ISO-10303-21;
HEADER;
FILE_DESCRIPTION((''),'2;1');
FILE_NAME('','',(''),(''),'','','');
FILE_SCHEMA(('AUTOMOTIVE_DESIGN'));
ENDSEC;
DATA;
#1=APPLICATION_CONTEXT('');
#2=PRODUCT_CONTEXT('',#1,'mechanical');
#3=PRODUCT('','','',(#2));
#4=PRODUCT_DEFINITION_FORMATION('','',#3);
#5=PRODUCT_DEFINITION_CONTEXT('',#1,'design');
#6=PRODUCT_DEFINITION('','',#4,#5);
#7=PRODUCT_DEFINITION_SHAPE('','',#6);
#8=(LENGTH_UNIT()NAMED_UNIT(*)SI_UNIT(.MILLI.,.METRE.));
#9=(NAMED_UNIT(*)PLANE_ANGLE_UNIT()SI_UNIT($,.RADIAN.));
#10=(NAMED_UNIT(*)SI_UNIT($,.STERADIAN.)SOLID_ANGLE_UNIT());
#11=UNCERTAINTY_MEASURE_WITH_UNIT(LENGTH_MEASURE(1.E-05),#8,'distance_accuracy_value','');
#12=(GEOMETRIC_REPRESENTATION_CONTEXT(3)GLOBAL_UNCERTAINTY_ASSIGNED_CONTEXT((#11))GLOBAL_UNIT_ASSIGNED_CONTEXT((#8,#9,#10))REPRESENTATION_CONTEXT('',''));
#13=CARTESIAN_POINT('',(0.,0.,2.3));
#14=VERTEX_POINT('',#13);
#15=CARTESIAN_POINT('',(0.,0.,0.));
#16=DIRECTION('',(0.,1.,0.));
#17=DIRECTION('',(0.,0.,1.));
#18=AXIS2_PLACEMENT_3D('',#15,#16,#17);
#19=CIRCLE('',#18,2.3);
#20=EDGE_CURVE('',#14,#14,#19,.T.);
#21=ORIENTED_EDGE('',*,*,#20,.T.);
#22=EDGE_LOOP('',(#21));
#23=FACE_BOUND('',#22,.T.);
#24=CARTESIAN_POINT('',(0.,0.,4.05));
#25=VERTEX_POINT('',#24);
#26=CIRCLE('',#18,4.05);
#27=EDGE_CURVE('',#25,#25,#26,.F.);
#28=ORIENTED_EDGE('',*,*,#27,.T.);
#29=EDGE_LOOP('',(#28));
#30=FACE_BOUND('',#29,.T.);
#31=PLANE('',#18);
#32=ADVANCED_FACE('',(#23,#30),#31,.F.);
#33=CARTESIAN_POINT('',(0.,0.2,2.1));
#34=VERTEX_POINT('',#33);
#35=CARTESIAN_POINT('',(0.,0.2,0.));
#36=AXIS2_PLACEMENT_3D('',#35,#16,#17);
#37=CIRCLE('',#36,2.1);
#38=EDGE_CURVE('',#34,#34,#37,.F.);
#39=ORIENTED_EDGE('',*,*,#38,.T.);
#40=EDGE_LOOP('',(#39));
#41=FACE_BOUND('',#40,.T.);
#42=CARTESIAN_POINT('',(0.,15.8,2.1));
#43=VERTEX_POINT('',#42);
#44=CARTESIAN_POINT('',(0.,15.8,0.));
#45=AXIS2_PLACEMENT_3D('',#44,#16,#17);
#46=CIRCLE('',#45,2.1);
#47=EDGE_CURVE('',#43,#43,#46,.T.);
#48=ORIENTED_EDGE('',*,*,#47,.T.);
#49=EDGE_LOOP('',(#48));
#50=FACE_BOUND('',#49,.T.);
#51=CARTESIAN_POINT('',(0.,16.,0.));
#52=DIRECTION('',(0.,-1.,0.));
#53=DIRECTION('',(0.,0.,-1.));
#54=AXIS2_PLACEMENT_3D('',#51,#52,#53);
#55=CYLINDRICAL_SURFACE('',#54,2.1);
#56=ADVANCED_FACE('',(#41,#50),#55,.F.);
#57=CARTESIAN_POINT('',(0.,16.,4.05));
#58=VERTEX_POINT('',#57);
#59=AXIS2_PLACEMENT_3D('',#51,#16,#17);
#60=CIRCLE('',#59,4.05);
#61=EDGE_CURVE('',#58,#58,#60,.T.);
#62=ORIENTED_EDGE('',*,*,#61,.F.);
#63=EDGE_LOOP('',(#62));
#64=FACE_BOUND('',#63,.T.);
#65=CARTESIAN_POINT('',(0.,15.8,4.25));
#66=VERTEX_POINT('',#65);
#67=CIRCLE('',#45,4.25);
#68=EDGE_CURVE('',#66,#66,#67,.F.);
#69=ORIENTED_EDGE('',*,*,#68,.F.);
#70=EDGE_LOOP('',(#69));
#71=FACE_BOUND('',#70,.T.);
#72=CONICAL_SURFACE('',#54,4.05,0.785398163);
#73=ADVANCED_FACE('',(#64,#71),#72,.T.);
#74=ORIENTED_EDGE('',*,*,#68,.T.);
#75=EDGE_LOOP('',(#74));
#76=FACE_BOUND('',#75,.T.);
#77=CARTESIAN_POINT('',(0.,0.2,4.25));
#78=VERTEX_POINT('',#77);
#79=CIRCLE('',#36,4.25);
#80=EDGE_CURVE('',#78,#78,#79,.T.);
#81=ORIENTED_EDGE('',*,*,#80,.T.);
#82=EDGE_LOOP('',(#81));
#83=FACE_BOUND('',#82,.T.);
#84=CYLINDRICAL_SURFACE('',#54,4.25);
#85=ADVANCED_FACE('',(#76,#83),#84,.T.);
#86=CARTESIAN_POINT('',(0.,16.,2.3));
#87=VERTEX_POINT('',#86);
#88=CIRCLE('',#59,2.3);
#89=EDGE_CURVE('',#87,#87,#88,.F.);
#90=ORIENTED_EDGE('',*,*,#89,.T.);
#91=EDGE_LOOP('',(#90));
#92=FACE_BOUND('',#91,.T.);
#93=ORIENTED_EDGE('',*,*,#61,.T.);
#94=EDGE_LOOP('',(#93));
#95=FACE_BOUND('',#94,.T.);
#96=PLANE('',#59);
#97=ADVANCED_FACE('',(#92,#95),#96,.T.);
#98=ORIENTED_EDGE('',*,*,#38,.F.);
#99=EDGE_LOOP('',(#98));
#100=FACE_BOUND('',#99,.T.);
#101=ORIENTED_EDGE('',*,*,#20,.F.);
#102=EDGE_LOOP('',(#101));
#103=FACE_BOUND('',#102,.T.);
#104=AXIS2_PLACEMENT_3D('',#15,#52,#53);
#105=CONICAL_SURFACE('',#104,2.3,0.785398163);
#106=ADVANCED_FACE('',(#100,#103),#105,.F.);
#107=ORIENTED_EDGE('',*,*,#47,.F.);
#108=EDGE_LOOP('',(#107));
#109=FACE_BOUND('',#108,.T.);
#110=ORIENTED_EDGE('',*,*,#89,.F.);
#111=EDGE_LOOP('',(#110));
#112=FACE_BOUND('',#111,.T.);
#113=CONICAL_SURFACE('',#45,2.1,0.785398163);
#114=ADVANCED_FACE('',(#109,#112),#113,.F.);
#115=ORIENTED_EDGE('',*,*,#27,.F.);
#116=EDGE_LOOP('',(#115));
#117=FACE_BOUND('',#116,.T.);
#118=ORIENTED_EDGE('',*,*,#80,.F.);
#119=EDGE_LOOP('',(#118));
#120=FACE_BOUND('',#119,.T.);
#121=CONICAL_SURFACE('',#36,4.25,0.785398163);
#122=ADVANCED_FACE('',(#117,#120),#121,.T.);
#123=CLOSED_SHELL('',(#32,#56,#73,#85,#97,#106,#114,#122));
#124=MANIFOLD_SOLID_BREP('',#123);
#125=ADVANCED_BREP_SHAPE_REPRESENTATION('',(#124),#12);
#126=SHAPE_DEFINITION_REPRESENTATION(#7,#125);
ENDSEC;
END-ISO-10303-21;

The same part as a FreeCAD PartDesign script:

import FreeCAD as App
import Part
import Sketcher

V = App.Vector


def edges_at(feature, points):
    """Names of the edges that pass closest to the given points."""
    edges = feature.Shape.Edges
    near = lambda p: min(range(len(edges)), key=lambda i: edges[i].distToShape(Part.Vertex(*p))[0])
    return sorted({f"Edge{near(p) + 1}" for p in points})

doc = App.newDocument("Part")
body = doc.addObject("PartDesign::Body", "Body")

# Sketch on XZ plane
sketch1 = body.newObject("Sketcher::SketchObject", "Sketch")
sketch1.AttachmentSupport = (doc.getObject("XZ_Plane"), [""])
sketch1.MapMode = "FlatFace"
sketch1.addGeometry([
    Part.Circle(V(0, 0, 0), V(0, 0, 1), 4.2),
    Part.Circle(V(0, 0, 0), V(0, 0, 1), 2.1),
], False)
sketch1.addConstraint([
    Sketcher.Constraint("Coincident", 0, 3, -1, 1),
    Sketcher.Constraint("Coincident", 1, 3, -1, 1),
    Sketcher.Constraint("Diameter", 0, 8.5),
    Sketcher.Constraint("Diameter", 1, 4.2),
])
pad1 = body.newObject("PartDesign::Pad", "Pad")
pad1.Profile = sketch1
pad1.Length = 16
pad1.Reversed = True
doc.recompute()

chamfer = body.newObject("PartDesign::Chamfer", "Chamfer")
chamfer.Base = (pad1, edges_at(pad1, [
    (0, 0, -4.25),
    (0, 16, -4.25),
    (0, 0, -2.1),
    (0, 16, -2.1),
]))
chamfer.Size = 0.2

doc.recompute()
